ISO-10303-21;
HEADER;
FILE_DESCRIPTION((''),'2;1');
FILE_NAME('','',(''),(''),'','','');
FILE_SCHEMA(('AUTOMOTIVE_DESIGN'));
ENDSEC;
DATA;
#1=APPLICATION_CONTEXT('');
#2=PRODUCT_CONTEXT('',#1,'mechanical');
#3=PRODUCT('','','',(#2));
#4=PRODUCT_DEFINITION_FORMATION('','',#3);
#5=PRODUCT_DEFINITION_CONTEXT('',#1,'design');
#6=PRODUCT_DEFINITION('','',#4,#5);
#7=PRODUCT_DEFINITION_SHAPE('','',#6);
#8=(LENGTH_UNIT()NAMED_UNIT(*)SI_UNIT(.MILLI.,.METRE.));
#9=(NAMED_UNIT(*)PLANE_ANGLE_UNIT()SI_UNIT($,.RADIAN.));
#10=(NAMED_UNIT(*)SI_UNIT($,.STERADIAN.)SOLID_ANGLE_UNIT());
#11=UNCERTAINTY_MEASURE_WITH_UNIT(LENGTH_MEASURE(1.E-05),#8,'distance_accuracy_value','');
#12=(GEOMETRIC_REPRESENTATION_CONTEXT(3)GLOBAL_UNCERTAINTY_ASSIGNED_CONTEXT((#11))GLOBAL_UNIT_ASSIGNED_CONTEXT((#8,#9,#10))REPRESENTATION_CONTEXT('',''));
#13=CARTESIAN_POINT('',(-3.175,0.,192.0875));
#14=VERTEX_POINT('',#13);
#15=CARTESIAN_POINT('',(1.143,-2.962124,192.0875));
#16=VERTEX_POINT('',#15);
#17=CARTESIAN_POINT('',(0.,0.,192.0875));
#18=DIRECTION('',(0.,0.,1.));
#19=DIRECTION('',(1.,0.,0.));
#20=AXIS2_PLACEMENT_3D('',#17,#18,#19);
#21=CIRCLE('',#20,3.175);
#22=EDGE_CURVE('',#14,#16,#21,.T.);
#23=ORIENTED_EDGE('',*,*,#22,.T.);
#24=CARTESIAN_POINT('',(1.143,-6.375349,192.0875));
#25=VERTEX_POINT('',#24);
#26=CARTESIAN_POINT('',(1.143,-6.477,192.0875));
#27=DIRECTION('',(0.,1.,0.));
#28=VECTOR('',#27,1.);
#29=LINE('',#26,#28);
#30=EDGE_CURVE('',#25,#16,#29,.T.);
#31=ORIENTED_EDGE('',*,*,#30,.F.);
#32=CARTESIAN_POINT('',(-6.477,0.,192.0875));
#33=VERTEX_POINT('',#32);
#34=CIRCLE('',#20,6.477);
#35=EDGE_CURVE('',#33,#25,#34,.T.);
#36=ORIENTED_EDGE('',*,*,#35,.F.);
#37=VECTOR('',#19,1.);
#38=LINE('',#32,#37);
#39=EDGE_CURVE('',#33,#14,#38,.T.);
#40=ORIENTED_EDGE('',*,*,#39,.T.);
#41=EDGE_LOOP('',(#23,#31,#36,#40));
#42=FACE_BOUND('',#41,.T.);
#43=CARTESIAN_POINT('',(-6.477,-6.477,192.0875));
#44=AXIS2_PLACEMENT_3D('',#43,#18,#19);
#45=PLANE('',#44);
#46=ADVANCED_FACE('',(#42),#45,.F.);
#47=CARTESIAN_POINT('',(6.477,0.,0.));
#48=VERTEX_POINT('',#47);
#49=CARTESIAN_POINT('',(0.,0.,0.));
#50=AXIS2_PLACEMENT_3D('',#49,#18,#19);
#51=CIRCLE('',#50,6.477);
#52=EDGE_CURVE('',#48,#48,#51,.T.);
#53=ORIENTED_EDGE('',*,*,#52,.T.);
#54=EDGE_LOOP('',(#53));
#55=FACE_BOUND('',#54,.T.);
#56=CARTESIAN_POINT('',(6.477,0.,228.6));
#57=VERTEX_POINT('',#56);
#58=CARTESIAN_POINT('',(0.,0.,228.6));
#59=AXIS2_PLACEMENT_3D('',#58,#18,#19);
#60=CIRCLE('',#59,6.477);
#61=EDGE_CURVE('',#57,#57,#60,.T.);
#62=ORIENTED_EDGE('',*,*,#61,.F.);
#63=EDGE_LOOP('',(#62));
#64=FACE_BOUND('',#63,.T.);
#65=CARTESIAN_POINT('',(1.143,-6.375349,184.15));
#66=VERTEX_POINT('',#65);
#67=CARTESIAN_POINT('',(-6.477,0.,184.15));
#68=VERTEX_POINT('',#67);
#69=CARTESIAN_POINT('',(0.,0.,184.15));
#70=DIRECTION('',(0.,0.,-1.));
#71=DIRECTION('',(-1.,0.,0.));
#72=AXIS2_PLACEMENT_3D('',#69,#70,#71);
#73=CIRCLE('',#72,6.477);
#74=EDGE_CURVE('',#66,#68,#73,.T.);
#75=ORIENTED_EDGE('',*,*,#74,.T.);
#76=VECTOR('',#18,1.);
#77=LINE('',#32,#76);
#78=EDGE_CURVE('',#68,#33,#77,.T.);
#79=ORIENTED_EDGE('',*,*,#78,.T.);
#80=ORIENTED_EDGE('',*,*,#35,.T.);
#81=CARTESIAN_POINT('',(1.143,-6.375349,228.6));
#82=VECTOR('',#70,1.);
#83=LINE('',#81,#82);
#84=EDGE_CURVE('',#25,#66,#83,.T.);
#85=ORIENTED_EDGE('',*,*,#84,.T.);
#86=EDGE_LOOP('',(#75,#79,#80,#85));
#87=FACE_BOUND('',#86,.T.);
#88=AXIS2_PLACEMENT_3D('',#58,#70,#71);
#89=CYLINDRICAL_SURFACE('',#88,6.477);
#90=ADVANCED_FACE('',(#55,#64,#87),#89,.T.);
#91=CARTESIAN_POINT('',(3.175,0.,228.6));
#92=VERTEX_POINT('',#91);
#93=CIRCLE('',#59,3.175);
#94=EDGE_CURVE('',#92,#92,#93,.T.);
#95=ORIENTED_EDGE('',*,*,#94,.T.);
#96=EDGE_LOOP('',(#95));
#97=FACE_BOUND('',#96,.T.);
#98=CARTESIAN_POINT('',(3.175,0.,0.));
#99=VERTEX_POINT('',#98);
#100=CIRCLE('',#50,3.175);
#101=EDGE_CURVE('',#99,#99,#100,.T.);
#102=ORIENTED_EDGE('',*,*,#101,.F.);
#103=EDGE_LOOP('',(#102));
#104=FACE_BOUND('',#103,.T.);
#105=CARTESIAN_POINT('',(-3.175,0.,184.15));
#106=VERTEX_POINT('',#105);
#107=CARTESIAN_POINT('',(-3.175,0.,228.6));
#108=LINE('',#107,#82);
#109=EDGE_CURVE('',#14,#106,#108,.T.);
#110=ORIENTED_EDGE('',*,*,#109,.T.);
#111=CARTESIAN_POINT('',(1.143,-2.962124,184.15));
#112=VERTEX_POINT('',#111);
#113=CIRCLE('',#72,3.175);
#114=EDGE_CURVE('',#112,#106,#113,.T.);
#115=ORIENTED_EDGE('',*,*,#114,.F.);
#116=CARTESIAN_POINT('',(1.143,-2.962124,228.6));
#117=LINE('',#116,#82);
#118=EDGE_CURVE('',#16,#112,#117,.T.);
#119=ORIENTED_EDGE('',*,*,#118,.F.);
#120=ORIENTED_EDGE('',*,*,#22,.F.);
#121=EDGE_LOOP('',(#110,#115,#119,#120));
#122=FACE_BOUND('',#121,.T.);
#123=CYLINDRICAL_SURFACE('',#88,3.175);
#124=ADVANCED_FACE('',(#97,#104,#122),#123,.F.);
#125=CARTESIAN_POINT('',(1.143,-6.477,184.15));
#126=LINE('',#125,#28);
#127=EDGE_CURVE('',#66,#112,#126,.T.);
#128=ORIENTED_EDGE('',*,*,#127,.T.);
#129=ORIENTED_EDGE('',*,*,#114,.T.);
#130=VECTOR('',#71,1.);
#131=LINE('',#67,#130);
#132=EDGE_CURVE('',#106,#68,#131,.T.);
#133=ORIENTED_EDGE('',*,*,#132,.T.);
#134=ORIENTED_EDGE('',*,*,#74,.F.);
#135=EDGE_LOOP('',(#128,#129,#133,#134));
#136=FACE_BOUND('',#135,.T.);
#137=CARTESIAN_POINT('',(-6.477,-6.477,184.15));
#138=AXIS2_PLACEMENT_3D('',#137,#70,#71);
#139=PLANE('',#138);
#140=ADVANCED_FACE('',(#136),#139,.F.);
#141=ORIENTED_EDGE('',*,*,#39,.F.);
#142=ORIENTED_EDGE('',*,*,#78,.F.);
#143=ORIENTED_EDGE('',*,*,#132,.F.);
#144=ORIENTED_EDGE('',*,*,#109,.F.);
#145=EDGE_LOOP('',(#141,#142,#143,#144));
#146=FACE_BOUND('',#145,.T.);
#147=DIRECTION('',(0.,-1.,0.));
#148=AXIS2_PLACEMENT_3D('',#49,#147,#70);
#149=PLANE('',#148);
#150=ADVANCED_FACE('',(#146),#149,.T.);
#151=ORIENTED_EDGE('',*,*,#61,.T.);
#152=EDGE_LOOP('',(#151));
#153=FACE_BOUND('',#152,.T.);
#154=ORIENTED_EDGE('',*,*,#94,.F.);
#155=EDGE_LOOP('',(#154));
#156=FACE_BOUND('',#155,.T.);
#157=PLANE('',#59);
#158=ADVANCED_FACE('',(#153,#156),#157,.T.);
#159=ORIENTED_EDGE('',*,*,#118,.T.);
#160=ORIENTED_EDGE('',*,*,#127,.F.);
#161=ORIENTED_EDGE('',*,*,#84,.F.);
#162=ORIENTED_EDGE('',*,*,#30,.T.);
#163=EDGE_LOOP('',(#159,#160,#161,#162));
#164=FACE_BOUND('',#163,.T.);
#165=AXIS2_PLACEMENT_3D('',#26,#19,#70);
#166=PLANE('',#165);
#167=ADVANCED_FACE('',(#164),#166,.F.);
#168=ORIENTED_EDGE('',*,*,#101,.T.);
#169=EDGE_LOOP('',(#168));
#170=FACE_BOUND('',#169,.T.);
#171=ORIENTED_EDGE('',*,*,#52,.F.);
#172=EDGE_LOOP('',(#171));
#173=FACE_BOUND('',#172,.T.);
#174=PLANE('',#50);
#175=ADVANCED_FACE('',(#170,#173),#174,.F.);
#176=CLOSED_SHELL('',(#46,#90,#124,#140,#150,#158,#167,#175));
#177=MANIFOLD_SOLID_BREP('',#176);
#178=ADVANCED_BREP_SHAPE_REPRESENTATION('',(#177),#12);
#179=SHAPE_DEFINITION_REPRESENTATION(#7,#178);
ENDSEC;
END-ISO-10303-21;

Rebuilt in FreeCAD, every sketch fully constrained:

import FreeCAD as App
import Part
import Sketcher
Q = App.Units.Quantity


def add_polygon(sketch, points):
    """Adds a closed chain of lines whose ends are joined by coincident constraints."""
    first, n = sketch.GeometryCount, len(points)
    for a, b in zip(points, points[1:] + points[:1]):
        sketch.addGeometry(Part.LineSegment(App.Vector(*a, 0), App.Vector(*b, 0)), False)
    for i in range(n):
        sketch.addConstraint(Sketcher.Constraint("Coincident", first + i, 2, first + (i + 1) % n, 1))

doc = App.newDocument("Part")
body = doc.addObject("PartDesign::Body", "Body")

# Sketch on XY plane
sketch1 = body.newObject("Sketcher::SketchObject", "Sketch")
sketch1.AttachmentSupport = (doc.getObject("XY_Plane"), [""])
sketch1.MapMode = "FlatFace"
sketch1.addGeometry(Part.Circle(App.Vector(0, 0, 0), App.Vector(0, 0, 1), 6.5), False)
sketch1.addGeometry(Part.Circle(App.Vector(0, 0, 0), App.Vector(0, 0, 1), 3.2), False)
sketch1.addConstraint(Sketcher.Constraint("Coincident", 0, 3, -1, 1))
sketch1.addConstraint(Sketcher.Constraint("Coincident", 1, 3, -1, 1))
sketch1.addConstraint(Sketcher.Constraint("Diameter", 0, Q("0.51 in")))
sketch1.addConstraint(Sketcher.Constraint("Diameter", 1, Q("0.25 in")))
pad1 = body.newObject("PartDesign::Pad", "Pad")
pad1.Profile = sketch1
pad1.Length = Q("9 in")

# Sketch on XZ plane
sketch2 = body.newObject("Sketcher::SketchObject", "Sketch001")
sketch2.AttachmentSupport = (doc.getObject("XZ_Plane"), [""])
sketch2.MapMode = "FlatFace"
add_polygon(sketch2, [(-6, 184), (-6, 192), (1, 192), (1, 184)])  # lines 0-3
sketch2.addConstraint(Sketcher.Constraint("Vertical", 0))
sketch2.addConstraint(Sketcher.Constraint("Horizontal", 1))
sketch2.addConstraint(Sketcher.Constraint("Vertical", 2))
sketch2.addConstraint(Sketcher.Constraint("Horizontal", 3))
sketch2.addConstraint(Sketcher.Constraint("DistanceX", 1, 1, 1, 2, Q("0.3 in")))
sketch2.addConstraint(Sketcher.Constraint("DistanceY", 0, 1, 0, 2, Q("0.3125 in")))
sketch2.addConstraint(Sketcher.Constraint("DistanceY", -1, 1, 2, 2, Q("7.25 in")))
sketch2.addConstraint(Sketcher.Constraint("DistanceX", 0, 2, -1, 1, Q("0.255 in")))
pocket1 = body.newObject("PartDesign::Pocket", "Pocket")
pocket1.Profile = sketch2
pocket1.Type = "ThroughAll"
pocket1.Reversed = True

doc.recompute()
